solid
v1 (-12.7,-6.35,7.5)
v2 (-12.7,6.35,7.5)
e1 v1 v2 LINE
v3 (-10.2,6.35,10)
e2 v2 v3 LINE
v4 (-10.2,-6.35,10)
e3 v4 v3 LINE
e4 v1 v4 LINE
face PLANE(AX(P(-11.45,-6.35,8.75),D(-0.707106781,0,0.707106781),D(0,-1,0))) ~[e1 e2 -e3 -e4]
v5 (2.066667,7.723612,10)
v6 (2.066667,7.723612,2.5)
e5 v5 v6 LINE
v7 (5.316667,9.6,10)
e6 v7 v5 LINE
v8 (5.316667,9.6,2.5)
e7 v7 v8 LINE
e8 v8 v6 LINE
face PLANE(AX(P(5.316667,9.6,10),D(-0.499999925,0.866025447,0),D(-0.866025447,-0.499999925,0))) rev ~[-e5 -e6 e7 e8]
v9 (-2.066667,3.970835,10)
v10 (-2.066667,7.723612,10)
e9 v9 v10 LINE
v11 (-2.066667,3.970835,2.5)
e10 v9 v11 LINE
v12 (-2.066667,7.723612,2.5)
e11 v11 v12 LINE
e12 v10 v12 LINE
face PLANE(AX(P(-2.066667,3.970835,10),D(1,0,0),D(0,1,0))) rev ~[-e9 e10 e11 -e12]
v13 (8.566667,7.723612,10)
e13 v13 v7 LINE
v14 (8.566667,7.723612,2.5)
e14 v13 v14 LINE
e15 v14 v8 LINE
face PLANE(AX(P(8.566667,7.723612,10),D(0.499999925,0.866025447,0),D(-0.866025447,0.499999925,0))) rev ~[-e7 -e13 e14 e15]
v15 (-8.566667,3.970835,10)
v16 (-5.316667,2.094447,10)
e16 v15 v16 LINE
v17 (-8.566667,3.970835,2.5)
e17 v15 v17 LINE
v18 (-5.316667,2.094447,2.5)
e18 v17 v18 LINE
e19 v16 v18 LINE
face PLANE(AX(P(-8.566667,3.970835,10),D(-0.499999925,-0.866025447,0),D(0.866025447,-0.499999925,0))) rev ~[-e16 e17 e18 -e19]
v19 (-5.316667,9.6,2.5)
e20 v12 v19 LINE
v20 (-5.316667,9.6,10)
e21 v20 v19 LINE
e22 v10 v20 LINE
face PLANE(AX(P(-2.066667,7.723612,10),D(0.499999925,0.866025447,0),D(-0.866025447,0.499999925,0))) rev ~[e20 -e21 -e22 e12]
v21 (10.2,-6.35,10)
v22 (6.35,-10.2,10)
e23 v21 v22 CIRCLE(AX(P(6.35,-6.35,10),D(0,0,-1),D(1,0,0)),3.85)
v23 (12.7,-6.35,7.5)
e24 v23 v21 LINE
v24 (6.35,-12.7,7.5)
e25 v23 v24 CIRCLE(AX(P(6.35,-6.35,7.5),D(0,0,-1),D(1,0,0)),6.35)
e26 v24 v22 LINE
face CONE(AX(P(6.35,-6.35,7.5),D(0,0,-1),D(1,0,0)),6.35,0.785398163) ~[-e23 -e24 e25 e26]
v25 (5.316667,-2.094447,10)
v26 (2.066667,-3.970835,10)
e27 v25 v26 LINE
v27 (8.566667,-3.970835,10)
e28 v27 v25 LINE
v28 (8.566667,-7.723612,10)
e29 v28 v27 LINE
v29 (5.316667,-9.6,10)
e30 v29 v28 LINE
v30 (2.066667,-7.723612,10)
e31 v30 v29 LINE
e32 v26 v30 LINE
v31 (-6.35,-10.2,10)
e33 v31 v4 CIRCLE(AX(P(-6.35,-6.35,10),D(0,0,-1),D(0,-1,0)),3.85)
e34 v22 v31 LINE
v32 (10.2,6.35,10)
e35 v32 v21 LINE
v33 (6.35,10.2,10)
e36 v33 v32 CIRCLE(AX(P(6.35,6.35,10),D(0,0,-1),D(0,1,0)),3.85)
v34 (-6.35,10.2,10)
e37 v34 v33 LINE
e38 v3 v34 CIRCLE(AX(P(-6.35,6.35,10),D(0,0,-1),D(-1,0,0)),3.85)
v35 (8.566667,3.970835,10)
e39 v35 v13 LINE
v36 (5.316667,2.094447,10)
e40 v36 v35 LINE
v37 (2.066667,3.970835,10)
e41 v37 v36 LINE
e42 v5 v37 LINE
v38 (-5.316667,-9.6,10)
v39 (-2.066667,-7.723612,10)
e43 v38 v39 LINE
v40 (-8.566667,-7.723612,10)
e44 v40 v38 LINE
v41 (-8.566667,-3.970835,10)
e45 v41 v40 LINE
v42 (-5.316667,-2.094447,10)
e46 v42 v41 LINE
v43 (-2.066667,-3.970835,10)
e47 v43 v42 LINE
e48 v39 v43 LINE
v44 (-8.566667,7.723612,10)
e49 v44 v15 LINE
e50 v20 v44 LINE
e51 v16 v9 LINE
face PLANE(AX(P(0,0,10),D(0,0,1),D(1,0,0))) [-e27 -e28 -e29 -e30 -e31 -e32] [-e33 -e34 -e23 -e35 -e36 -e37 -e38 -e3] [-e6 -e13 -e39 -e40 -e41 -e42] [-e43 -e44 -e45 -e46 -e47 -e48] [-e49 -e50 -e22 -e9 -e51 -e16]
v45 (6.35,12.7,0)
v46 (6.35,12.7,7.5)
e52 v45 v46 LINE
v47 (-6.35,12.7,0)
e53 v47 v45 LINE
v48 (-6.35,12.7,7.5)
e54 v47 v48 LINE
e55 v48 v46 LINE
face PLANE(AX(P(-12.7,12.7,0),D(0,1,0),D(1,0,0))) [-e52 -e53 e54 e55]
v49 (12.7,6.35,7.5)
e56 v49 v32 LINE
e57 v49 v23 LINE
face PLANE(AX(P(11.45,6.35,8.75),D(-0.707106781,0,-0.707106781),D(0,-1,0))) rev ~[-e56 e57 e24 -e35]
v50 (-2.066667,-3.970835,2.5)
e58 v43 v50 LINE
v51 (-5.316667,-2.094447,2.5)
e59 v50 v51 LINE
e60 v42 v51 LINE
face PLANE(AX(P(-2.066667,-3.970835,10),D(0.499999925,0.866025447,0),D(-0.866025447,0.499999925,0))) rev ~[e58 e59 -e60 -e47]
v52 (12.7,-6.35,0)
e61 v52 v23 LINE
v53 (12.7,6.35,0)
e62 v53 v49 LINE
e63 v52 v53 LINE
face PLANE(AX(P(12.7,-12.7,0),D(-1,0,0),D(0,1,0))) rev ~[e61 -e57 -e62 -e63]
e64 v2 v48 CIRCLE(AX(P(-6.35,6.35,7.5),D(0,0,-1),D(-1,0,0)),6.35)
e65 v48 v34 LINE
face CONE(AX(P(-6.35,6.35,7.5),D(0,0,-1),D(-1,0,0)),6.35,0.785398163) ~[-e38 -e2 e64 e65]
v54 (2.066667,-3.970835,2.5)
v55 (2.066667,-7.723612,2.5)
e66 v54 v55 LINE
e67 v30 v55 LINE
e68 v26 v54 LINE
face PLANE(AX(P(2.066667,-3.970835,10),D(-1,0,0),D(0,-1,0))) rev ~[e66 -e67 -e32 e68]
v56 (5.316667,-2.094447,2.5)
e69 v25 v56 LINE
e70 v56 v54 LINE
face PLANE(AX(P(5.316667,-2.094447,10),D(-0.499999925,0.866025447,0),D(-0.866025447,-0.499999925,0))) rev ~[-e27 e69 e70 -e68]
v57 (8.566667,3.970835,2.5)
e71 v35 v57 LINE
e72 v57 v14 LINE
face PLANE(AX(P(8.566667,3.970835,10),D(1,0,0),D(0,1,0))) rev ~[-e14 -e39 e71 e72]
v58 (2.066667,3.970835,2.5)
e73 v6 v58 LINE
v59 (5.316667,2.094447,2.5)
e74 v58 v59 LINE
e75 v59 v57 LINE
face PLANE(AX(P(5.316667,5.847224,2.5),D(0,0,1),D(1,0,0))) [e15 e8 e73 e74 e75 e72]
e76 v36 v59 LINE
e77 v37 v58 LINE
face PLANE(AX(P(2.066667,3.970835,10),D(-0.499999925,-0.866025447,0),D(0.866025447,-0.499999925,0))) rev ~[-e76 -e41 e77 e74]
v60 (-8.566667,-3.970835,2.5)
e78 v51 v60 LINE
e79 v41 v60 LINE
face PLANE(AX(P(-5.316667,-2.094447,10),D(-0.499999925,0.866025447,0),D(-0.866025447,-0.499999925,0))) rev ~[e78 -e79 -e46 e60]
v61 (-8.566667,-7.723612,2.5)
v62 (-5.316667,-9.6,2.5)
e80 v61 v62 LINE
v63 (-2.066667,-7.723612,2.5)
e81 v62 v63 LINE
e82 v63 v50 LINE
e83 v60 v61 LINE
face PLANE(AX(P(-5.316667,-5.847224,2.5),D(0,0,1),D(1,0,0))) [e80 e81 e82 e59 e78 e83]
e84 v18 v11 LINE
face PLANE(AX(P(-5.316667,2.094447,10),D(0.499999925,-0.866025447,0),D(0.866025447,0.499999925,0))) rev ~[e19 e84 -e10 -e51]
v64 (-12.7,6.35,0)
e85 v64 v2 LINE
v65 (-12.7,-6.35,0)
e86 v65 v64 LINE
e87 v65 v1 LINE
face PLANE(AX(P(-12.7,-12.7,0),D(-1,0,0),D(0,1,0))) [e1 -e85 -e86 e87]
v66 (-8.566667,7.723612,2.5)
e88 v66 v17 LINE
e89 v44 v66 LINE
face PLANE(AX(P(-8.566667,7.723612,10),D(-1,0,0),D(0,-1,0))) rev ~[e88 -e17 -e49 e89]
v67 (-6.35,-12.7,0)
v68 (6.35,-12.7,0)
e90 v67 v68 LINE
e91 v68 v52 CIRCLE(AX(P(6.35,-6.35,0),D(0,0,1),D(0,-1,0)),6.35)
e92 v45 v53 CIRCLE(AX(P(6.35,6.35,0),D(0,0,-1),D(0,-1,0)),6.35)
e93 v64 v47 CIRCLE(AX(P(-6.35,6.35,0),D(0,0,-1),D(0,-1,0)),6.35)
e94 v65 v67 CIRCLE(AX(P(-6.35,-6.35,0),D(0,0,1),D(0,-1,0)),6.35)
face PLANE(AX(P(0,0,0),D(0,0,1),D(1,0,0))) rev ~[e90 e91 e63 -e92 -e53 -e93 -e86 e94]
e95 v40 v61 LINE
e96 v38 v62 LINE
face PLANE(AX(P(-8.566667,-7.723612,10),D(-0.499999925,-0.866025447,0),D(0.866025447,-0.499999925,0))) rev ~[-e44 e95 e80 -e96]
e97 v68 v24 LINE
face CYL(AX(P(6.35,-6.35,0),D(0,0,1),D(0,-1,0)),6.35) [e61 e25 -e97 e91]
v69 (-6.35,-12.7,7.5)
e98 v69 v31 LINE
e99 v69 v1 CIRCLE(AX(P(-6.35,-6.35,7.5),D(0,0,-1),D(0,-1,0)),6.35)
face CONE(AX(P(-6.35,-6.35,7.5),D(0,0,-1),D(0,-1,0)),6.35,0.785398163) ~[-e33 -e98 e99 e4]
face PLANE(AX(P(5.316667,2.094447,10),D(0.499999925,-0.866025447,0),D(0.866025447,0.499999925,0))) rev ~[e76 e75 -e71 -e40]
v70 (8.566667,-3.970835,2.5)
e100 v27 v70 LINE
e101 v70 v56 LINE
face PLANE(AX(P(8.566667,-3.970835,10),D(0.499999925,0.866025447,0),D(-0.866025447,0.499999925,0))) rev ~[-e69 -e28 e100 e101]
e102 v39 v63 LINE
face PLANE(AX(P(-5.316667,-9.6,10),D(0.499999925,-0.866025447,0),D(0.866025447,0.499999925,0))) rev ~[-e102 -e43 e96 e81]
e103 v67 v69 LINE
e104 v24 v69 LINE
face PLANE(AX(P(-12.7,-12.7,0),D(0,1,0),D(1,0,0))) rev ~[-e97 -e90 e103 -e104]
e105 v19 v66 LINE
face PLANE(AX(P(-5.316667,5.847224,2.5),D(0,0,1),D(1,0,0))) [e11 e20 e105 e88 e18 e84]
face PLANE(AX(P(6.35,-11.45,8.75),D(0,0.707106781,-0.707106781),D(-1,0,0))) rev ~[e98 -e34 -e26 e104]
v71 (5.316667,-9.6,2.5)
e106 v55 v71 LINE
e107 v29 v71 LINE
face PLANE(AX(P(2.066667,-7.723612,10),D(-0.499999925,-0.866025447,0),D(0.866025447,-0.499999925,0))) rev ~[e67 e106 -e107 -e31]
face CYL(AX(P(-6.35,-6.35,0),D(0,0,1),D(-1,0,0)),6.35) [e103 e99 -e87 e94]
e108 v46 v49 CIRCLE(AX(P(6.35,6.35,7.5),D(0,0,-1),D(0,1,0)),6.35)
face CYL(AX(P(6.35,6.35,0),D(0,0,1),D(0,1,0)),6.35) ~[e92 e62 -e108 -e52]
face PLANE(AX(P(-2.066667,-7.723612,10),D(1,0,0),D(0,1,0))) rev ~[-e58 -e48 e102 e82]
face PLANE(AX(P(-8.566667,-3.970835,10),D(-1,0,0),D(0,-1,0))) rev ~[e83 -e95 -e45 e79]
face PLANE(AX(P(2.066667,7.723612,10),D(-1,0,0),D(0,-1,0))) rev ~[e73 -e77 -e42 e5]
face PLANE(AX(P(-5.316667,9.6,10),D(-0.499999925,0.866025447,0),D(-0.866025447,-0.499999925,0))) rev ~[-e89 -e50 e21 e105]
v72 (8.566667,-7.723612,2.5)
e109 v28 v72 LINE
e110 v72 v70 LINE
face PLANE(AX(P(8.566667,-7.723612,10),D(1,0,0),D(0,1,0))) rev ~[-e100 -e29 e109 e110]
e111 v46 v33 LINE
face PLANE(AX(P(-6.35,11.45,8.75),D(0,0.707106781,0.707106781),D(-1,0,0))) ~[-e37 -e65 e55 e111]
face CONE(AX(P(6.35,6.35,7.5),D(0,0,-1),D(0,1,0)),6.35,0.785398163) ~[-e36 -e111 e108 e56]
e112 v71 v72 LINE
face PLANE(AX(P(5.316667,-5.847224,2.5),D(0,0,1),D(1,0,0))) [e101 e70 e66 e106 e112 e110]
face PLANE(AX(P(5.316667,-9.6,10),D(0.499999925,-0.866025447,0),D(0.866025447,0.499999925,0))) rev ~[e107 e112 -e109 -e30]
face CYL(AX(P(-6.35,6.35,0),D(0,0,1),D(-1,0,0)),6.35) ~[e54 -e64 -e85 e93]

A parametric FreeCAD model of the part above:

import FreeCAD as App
import Part
import Sketcher

V = App.Vector
Q = App.Units.Quantity


def edges_at(feature, points):
    """Names of the edges that pass closest to the given points."""
    edges = feature.Shape.Edges
    near = lambda p: min(range(len(edges)), key=lambda i: edges[i].distToShape(Part.Vertex(*p))[0])
    return sorted({f"Edge{near(p) + 1}" for p in points})

doc = App.newDocument("Part")
body = doc.addObject("PartDesign::Body", "Body")

sketch1 = body.newObject("Sketcher::SketchObject", "Sketch")
sketch1.AttachmentSupport = (doc.getObject("XY_Plane"), [""])
sketch1.MapMode = "FlatFace"
sketch1.addGeometry(Part.LineSegment(V(-13, 13, 0), V(-13, -13, 0)), False)
sketch1.addGeometry(Part.LineSegment(V(-13, -13, 0), V(13, -13, 0)), False)
sketch1.addGeometry(Part.LineSegment(V(13, -13, 0), V(13, 13, 0)), False)
sketch1.addGeometry(Part.LineSegment(V(13, 13, 0), V(-13, 13, 0)), False)
sketch1.addConstraint(Sketcher.Constraint("Coincident", 0, 2, 1, 1))
sketch1.addConstraint(Sketcher.Constraint("Coincident", 1, 2, 2, 1))
sketch1.addConstraint(Sketcher.Constraint("Coincident", 2, 2, 3, 1))
sketch1.addConstraint(Sketcher.Constraint("Coincident", 3, 2, 0, 1))
sketch1.addConstraint(Sketcher.Constraint("Vertical", 0))
sketch1.addConstraint(Sketcher.Constraint("Horizontal", 1))
sketch1.addConstraint(Sketcher.Constraint("Vertical", 2))
sketch1.addConstraint(Sketcher.Constraint("Horizontal", 3))
sketch1.addConstraint(Sketcher.Constraint("Symmetric", 0, 2, 2, 2, -1, 1))
sketch1.addConstraint(Sketcher.Constraint("Equal", 3, 0))
sketch1.addConstraint(Sketcher.Constraint("DistanceX", 1, 1, 1, 2, 25.4))
pad1 = body.newObject("PartDesign::Pad", "Pad")
pad1.Profile = sketch1
pad1.Length = 10

sketch2 = body.newObject("Sketcher::SketchObject", "Sketch001")
sketch2.AttachmentSupport = (doc.getObject("XY_Plane"), [""])
sketch2.MapMode = "FlatFace"
sketch2.AttachmentOffset = App.Placement(V(0, 0, 10), App.Rotation())
sketch2.addGeometry(Part.LineSegment(V(-5.3, 9.6, 0), V(-8.6, 7.7, 0)), False)
sketch2.addGeometry(Part.LineSegment(V(-8.6, 7.7, 0), V(-8.6, 4, 0)), False)
sketch2.addGeometry(Part.LineSegment(V(-8.6, 4, 0), V(-5.3, 2.1, 0)), False)
sketch2.addGeometry(Part.LineSegment(V(-5.3, 2.1, 0), V(-2.1, 4, 0)), False)
sketch2.addGeometry(Part.LineSegment(V(-2.1, 4, 0), V(-2.1, 7.7, 0)), False)
sketch2.addGeometry(Part.LineSegment(V(-2.1, 7.7, 0), V(-5.3, 9.6, 0)), False)
sketch2.addGeometry(Part.LineSegment(V(2.1, 4, 0), V(5.3, 2.1, 0)), False)
sketch2.addGeometry(Part.LineSegment(V(5.3, 2.1, 0), V(8.6, 4, 0)), False)
sketch2.addGeometry(Part.LineSegment(V(8.6, 4, 0), V(8.6, 7.7, 0)), False)
sketch2.addGeometry(Part.LineSegment(V(8.6, 7.7, 0), V(5.3, 9.6, 0)), False)
sketch2.addGeometry(Part.LineSegment(V(5.3, 9.6, 0), V(2.1, 7.7, 0)), False)
sketch2.addGeometry(Part.LineSegment(V(2.1, 7.7, 0), V(2.1, 4, 0)), False)
sketch2.addGeometry(Part.LineSegment(V(5.3, -2.1, 0), V(2.1, -4, 0)), False)
sketch2.addGeometry(Part.LineSegment(V(2.1, -4, 0), V(2.1, -7.7, 0)), False)
sketch2.addGeometry(Part.LineSegment(V(2.1, -7.7, 0), V(5.3, -9.6, 0)), False)
sketch2.addGeometry(Part.LineSegment(V(5.3, -9.6, 0), V(8.6, -7.7, 0)), False)
sketch2.addGeometry(Part.LineSegment(V(8.6, -7.7, 0), V(8.6, -4, 0)), False)
sketch2.addGeometry(Part.LineSegment(V(8.6, -4, 0), V(5.3, -2.1, 0)), False)
sketch2.addGeometry(Part.LineSegment(V(-5.3, -2.1, 0), V(-8.6, -4, 0)), False)
sketch2.addGeometry(Part.LineSegment(V(-8.6, -4, 0), V(-8.6, -7.7, 0)), False)
sketch2.addGeometry(Part.LineSegment(V(-8.6, -7.7, 0), V(-5.3, -9.6, 0)), False)
sketch2.addGeometry(Part.LineSegment(V(-5.3, -9.6, 0), V(-2.1, -7.7, 0)), False)
sketch2.addGeometry(Part.LineSegment(V(-2.1, -7.7, 0), V(-2.1, -4, 0)), False)
sketch2.addGeometry(Part.LineSegment(V(-2.1, -4, 0), V(-5.3, -2.1, 0)), False)
sketch2.addConstraint(Sketcher.Constraint("Coincident", 0, 2, 1, 1))
sketch2.addConstraint(Sketcher.Constraint("Coincident", 1, 2, 2, 1))
sketch2.addConstraint(Sketcher.Constraint("Coincident", 2, 2, 3, 1))
sketch2.addConstraint(Sketcher.Constraint("Coincident", 3, 2, 4, 1))
sketch2.addConstraint(Sketcher.Constraint("Coincident", 4, 2, 5, 1))
sketch2.addConstraint(Sketcher.Constraint("Coincident", 5, 2, 0, 1))
sketch2.addConstraint(Sketcher.Constraint("Coincident", 6, 2, 7, 1))
sketch2.addConstraint(Sketcher.Constraint("Coincident", 7, 2, 8, 1))
sketch2.addConstraint(Sketcher.Constraint("Coincident", 8, 2, 9, 1))
sketch2.addConstraint(Sketcher.Constraint("Coincident", 9, 2, 10, 1))
sketch2.addConstraint(Sketcher.Constraint("Coincident", 10, 2, 11, 1))
sketch2.addConstraint(Sketcher.Constraint("Coincident", 11, 2, 6, 1))
sketch2.addConstraint(Sketcher.Constraint("Coincident", 12, 2, 13, 1))
sketch2.addConstraint(Sketcher.Constraint("Coincident", 13, 2, 14, 1))
sketch2.addConstraint(Sketcher.Constraint("Coincident", 14, 2, 15, 1))
sketch2.addConstraint(Sketcher.Constraint("Coincident", 15, 2, 16, 1))
sketch2.addConstraint(Sketcher.Constraint("Coincident", 16, 2, 17, 1))
sketch2.addConstraint(Sketcher.Constraint("Coincident", 17, 2, 12, 1))
sketch2.addConstraint(Sketcher.Constraint("Coincident", 18, 2, 19, 1))
sketch2.addConstraint(Sketcher.Constraint("Coincident", 19, 2, 20, 1))
sketch2.addConstraint(Sketcher.Constraint("Coincident", 20, 2, 21, 1))
sketch2.addConstraint(Sketcher.Constraint("Coincident", 21, 2, 22, 1))
sketch2.addConstraint(Sketcher.Constraint("Coincident", 22, 2, 23, 1))
sketch2.addConstraint(Sketcher.Constraint("Coincident", 23, 2, 18, 1))
sketch2.addConstraint(Sketcher.Constraint("Vertical", 1))
sketch2.addConstraint(Sketcher.Constraint("Vertical", 4))
sketch2.addConstraint(Sketcher.Constraint("Vertical", 8))
sketch2.addConstraint(Sketcher.Constraint("Vertical", 11))
sketch2.addConstraint(Sketcher.Constraint("Vertical", 13))
sketch2.addConstraint(Sketcher.Constraint("Vertical", 16))
sketch2.addConstraint(Sketcher.Constraint("Vertical", 19))
sketch2.addConstraint(Sketcher.Constraint("Vertical", 22))
sketch2.addConstraint(Sketcher.Constraint("Symmetric", 3, 2, 12, 2, -1, 1))
sketch2.addConstraint(Sketcher.Constraint("Symmetric", 5, 2, 14, 2, -1, 1))
sketch2.addConstraint(Sketcher.Constraint("Symmetric", 0, 2, 15, 2, -1, 1))
sketch2.addConstraint(Sketcher.Constraint("Symmetric", 2, 2, 17, 2, -1, 1))
sketch2.addConstraint(Sketcher.Constraint("Symmetric", 7, 2, 18, 2, -1, 1))
sketch2.addConstraint(Sketcher.Constraint("Symmetric", 9, 2, 20, 2, -1, 1))
sketch2.addConstraint(Sketcher.Constraint("Symmetric", 10, 2, 21, 2, -1, 1))
sketch2.addConstraint(Sketcher.Constraint("Symmetric", 6, 2, 23, 2, -1, 1))
sketch2.addConstraint(Sketcher.Constraint("Symmetric", 2, 2, 6, 2, -2))
sketch2.addConstraint(Sketcher.Constraint("Symmetric", 1, 2, 7, 2, -2))
sketch2.addConstraint(Sketcher.Constraint("Symmetric", 5, 2, 9, 2, -2))
sketch2.addConstraint(Sketcher.Constraint("Symmetric", 4, 2, 10, 2, -2))
sketch2.addConstraint(Sketcher.Constraint("Parallel", 0, 3))
sketch2.addConstraint(Sketcher.Constraint("Parallel", 2, 5))
sketch2.addConstraint(Sketcher.Constraint("Parallel", 5, 6))
sketch2.addConstraint(Sketcher.Constraint("Parallel", 3, 7))
sketch2.addConstraint(Sketcher.Constraint("Parallel", 6, 9))
sketch2.addConstraint(Sketcher.Constraint("Parallel", 9, 14))
sketch2.addConstraint(Sketcher.Constraint("Parallel", 14, 17))
sketch2.addConstraint(Sketcher.Constraint("Parallel", 17, 20))
sketch2.addConstraint(Sketcher.Constraint("Parallel", 20, 23))
sketch2.addConstraint(Sketcher.Constraint("Horizontal", 1, 2, 3, 2))
sketch2.addConstraint(Sketcher.Constraint("Horizontal", 0, 2, 4, 2))
sketch2.addConstraint(Sketcher.Constraint("Angle", 0, Q("-150.000005 deg")))
sketch2.addConstraint(Sketcher.Constraint("DistanceY", -1, 1, 5, 2, 9.6))
sketch2.addConstraint(Sketcher.Constraint("DistanceX", 1, 2, 3, 2, 6.5))
sketch2.addConstraint(Sketcher.Constraint("DistanceY", 1, 2, 1, 1, 3.752777))
sketch2.addConstraint(Sketcher.Constraint("DistanceX", 0, 2, -1, 1, 8.566667))
pocket1 = body.newObject("PartDesign::Pocket", "Pocket")
pocket1.Profile = sketch2
pocket1.Length = 7.5
doc.recompute()

fillet = body.newObject("PartDesign::Fillet", "Fillet")
fillet.Base = (pocket1, edges_at(pocket1, [
    (-12.7, -12.7, 5),
    (12.7, -12.7, 5),
    (12.7, 12.7, 5),
    (-12.7, 12.7, 5),
]))
fillet.Radius = 6.35
doc.recompute()

chamfer = body.newObject("PartDesign::Chamfer", "Chamfer")
chamfer.Base = (fillet, edges_at(fillet, [
    (-12.7, 0, 10),
    (0, -12.7, 10),
    (12.7, 0, 10),
    (0, 12.7, 10),
]))
chamfer.Size = 2.5

doc.recompute()
